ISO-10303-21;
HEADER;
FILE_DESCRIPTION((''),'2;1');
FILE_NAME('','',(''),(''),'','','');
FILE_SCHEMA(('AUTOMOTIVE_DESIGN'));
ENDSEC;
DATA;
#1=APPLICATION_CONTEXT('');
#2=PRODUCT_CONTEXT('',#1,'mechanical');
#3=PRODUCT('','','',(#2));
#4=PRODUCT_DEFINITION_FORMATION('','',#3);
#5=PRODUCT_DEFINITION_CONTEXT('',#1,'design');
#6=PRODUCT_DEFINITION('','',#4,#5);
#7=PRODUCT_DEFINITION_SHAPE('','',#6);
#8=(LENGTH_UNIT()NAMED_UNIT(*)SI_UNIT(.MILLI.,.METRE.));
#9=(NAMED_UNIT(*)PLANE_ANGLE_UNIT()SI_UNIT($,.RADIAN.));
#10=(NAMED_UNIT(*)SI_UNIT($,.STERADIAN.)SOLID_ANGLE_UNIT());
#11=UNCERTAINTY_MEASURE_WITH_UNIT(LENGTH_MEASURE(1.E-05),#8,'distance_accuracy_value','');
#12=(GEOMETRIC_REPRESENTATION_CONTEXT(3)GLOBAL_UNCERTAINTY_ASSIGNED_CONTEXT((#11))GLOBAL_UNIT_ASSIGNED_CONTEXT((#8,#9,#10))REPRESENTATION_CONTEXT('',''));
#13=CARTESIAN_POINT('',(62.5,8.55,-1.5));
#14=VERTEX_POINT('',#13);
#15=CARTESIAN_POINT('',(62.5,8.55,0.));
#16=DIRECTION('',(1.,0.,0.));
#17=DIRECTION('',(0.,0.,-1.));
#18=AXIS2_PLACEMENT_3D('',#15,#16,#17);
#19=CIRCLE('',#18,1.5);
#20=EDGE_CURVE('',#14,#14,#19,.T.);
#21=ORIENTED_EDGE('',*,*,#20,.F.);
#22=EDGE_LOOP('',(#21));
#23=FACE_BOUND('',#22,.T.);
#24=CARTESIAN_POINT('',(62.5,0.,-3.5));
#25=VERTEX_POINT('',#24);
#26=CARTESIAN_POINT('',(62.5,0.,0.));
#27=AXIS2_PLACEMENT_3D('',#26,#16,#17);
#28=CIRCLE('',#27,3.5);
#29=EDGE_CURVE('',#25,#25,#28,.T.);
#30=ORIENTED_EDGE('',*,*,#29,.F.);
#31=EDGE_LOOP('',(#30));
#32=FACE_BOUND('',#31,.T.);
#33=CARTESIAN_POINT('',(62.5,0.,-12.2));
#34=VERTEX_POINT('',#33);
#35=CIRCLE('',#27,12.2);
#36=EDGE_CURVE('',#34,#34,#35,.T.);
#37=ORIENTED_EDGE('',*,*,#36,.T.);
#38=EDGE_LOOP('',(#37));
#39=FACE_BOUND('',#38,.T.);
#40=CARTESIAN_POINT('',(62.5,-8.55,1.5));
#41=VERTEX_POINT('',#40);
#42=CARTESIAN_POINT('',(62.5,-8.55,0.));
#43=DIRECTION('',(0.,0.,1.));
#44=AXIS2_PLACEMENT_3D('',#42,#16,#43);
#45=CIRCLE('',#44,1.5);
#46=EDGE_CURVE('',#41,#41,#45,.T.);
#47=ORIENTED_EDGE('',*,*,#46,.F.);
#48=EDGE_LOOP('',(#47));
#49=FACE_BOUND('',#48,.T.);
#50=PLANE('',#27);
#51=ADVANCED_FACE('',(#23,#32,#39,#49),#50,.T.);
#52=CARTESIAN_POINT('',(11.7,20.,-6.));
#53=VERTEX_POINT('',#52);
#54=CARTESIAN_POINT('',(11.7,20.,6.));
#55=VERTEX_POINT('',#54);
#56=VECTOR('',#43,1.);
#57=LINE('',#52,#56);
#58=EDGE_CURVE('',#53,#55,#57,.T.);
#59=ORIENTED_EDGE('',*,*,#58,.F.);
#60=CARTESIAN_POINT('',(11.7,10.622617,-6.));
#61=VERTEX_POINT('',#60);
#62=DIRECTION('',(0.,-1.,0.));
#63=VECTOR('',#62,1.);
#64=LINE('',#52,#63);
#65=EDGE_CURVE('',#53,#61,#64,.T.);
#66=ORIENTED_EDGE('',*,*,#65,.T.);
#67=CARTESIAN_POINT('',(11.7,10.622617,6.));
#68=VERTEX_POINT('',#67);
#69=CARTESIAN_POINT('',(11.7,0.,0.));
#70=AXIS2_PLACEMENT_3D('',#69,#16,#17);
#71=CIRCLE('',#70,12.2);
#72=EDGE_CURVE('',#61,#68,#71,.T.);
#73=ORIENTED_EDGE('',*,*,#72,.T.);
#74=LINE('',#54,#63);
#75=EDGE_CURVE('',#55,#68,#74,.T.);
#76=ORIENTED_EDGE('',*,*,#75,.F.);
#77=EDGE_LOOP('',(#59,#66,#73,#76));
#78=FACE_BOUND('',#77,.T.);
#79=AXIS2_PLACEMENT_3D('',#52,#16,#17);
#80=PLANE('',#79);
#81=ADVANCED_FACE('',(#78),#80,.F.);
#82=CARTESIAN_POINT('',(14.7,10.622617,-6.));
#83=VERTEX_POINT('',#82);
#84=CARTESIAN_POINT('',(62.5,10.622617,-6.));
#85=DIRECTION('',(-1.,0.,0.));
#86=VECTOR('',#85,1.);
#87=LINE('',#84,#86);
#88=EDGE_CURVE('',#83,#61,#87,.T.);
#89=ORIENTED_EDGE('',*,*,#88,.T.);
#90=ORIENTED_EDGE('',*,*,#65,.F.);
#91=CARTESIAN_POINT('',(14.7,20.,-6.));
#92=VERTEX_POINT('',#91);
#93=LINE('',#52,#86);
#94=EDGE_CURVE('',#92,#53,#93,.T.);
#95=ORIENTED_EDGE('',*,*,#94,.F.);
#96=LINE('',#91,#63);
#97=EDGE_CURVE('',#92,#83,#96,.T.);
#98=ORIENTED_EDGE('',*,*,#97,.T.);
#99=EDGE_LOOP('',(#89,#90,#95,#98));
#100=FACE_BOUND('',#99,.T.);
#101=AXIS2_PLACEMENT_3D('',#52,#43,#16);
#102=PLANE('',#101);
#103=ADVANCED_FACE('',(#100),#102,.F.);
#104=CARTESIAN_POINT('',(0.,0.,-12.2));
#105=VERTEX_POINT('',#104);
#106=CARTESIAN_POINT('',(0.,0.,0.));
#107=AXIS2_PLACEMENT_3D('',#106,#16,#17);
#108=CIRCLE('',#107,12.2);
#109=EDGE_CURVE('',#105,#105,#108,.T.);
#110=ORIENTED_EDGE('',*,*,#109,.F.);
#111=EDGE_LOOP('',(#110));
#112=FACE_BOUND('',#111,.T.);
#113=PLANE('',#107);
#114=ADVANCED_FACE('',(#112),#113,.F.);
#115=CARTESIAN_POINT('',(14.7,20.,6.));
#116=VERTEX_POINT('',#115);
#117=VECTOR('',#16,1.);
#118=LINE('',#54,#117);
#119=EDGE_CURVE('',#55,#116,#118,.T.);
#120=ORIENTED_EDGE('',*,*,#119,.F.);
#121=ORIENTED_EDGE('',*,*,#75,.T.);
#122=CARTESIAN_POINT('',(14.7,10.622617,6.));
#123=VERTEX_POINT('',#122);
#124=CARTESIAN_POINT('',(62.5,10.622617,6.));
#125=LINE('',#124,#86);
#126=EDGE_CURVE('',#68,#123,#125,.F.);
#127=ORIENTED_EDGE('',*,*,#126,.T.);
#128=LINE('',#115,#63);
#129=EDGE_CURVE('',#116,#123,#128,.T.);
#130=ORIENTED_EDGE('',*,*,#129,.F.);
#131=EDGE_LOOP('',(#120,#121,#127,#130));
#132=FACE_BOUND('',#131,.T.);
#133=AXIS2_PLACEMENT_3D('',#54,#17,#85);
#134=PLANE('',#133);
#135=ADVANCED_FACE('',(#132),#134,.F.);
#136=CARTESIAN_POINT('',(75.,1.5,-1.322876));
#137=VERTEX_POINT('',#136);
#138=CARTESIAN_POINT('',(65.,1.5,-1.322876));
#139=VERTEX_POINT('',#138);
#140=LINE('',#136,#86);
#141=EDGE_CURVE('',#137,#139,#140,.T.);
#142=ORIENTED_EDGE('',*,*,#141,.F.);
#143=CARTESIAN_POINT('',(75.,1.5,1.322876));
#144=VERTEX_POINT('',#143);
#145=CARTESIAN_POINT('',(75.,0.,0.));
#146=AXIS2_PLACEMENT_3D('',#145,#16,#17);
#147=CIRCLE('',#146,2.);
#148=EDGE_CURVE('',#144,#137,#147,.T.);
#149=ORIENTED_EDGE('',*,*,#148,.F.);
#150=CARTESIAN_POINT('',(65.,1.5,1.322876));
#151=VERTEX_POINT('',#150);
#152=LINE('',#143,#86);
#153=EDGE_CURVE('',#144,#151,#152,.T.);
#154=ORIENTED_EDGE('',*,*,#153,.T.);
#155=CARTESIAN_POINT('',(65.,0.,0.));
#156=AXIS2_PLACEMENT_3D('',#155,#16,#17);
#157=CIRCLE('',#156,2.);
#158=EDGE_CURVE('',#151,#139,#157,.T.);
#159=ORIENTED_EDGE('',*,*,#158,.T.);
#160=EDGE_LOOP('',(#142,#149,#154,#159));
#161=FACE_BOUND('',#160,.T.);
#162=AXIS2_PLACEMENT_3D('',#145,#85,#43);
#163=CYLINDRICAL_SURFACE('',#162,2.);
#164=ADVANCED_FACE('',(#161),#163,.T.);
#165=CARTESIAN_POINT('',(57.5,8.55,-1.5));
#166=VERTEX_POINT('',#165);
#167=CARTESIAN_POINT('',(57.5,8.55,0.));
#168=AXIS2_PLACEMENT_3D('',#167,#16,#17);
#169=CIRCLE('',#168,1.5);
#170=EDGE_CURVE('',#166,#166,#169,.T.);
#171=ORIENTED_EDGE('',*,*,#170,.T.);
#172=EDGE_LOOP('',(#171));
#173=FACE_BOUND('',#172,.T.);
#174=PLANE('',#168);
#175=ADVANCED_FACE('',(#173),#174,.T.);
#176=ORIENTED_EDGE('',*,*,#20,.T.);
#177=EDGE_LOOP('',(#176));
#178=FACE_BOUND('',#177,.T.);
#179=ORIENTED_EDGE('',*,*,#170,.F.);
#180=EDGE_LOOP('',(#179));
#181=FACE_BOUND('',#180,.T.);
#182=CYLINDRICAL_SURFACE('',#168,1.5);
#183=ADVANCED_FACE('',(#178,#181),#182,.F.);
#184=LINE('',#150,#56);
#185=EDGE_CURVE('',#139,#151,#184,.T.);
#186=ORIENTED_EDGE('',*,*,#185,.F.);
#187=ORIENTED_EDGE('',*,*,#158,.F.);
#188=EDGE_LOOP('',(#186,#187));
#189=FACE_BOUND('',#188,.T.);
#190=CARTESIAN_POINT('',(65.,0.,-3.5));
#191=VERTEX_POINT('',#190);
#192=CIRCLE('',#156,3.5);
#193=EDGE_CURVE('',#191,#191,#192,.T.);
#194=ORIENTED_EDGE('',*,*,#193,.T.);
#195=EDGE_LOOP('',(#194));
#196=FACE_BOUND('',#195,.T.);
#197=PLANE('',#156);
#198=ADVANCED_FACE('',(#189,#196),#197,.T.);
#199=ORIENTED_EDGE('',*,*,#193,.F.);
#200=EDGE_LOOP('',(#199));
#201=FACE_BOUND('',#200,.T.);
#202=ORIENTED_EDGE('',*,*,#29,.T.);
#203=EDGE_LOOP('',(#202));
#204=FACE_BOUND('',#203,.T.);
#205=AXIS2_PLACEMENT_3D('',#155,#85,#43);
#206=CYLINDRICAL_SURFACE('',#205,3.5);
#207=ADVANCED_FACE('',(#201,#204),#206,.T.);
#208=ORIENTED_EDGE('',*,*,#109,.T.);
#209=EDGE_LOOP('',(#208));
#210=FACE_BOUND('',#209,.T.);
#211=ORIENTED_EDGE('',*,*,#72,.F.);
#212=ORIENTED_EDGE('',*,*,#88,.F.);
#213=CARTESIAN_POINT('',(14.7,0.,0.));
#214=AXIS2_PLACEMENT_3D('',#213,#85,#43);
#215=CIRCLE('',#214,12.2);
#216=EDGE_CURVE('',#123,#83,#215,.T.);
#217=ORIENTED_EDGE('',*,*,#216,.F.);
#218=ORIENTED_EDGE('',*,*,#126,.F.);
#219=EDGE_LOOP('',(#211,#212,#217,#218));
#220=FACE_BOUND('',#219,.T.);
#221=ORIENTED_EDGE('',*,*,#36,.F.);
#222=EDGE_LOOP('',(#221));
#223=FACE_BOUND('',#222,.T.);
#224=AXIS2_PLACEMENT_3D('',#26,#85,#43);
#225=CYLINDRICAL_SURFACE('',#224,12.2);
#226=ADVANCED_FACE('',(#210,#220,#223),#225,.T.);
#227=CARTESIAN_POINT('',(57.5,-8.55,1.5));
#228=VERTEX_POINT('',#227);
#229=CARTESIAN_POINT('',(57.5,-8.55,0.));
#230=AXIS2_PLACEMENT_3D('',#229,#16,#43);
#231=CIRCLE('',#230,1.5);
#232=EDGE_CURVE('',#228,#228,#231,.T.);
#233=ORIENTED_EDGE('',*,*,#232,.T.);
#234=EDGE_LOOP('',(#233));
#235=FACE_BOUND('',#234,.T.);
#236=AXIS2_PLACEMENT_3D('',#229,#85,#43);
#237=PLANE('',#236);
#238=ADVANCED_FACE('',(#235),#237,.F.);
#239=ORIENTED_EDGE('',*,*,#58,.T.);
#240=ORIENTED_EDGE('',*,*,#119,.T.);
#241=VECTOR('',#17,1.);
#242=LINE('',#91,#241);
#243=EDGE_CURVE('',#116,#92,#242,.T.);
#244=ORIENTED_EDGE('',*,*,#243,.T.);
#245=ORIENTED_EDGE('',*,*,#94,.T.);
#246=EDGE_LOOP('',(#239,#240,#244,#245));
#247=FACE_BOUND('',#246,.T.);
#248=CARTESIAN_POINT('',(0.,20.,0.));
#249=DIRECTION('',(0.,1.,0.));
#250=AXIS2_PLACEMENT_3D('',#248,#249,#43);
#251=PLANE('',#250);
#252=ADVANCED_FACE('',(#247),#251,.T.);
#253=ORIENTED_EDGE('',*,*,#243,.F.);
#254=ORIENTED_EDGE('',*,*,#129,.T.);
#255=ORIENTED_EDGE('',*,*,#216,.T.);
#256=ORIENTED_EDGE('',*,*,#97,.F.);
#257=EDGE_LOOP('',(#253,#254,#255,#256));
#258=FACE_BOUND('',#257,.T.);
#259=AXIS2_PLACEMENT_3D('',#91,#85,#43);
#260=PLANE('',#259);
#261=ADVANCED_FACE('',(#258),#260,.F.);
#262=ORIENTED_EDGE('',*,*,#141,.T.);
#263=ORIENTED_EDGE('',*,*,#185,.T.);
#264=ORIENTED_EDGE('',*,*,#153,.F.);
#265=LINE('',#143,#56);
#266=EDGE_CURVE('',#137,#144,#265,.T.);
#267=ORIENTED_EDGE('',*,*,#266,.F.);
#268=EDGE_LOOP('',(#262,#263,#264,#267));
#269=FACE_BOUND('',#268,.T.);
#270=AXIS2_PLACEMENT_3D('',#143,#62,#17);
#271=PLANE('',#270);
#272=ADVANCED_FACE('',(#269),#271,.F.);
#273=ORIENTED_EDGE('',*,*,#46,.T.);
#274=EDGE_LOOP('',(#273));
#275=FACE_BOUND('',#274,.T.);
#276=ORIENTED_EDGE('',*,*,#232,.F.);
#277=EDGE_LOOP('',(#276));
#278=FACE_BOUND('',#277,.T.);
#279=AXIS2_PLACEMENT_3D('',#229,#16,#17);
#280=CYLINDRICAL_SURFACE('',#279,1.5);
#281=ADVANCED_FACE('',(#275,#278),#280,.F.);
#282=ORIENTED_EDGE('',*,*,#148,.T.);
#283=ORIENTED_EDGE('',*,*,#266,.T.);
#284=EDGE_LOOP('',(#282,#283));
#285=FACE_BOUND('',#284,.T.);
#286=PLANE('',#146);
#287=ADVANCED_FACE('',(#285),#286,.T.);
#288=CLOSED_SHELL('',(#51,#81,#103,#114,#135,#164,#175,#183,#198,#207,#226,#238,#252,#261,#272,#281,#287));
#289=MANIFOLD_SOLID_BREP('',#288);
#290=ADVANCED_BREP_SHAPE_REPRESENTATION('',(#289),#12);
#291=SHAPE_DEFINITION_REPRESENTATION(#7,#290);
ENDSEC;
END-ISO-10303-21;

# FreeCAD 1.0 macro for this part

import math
import FreeCAD as App
import Part
import Sketcher
from FreeCAD import Vector
Q = App.Units.Quantity


def add_polygon(sketch, points):
    """Adds a closed chain of lines whose ends are joined by coincident constraints."""
    first, n = sketch.GeometryCount, len(points)
    for a, b in zip(points, points[1:] + points[:1]):
        sketch.addGeometry(Part.LineSegment(App.Vector(*a, 0), App.Vector(*b, 0)), False)
    for i in range(n):
        sketch.addConstraint(Sketcher.Constraint("Coincident", first + i, 2, first + (i + 1) % n, 1))

doc = App.newDocument("Part")
body = doc.addObject("PartDesign::Body", "Body")

# Sketch on YZ plane
sketch1 = body.newObject("Sketcher::SketchObject", "Sketch")
sketch1.AttachmentSupport = (doc.getObject("YZ_Plane"), [""])
sketch1.MapMode = "FlatFace"
sketch1.addGeometry(Part.Circle(Vector(0, 0, 0), Vector(0, 0, 1), 12), False)
sketch1.addConstraint([
    Sketcher.Constraint("Coincident", 0, 3, -1, 1),
    Sketcher.Constraint("Diameter", 0, Q("24.4 mm")),
])
pad1 = body.newObject("PartDesign::Pad", "Pad")
pad1.Profile = sketch1
pad1.Length = 62.5

# Sketch on YZ plane
sketch2 = body.newObject("Sketcher::SketchObject", "Sketch001")
sketch2.AttachmentSupport = (doc.getObject("YZ_Plane"), [""])
sketch2.MapMode = "FlatFace"
sketch2.AttachmentOffset = App.Placement(Vector(0, 0, 62.5), App.Rotation())
sketch2.addGeometry(Part.Circle(Vector(0, 0, 0), Vector(0, 0, 1), 3.5), False)
sketch2.addConstraint([
    Sketcher.Constraint("Coincident", 0, 3, -1, 1),
    Sketcher.Constraint("Diameter", 0, Q("7 mm")),
])
pad2 = body.newObject("PartDesign::Pad", "Pad001")
pad2.Profile = sketch2
pad2.Length = 2.5

# Sketch on YZ plane
sketch3 = body.newObject("Sketcher::SketchObject", "Sketch002")
sketch3.AttachmentSupport = (doc.getObject("YZ_Plane"), [""])
sketch3.MapMode = "FlatFace"
sketch3.AttachmentOffset = App.Placement(Vector(0, 0, 65), App.Rotation())
sketch3.addGeometry([
    Part.LineSegment(Vector(1.5, -1.3, 0), Vector(1.5, 1.3, 0)),
    Part.ArcOfCircle(Part.Circle(Vector(0, 0, 0), Vector(0, 0, 1), 2), math.radians(41), math.radians(319)),
], False)
sketch3.addConstraint([
    Sketcher.Constraint("Coincident", 0, 1, 1, 2),
    Sketcher.Constraint("Coincident", 1, 1, 0, 2),
    Sketcher.Constraint("Vertical", 0),
    Sketcher.Constraint("Coincident", 1, 3, -1, 1),
    Sketcher.Constraint("Radius", 1, Q("2 mm")),
    Sketcher.Constraint("DistanceX", -1, 1, 0, 1, Q("1.5 mm")),
])
pad3 = body.newObject("PartDesign::Pad", "Pad002")
pad3.Profile = sketch3
pad3.Length = 10

# Sketch on YZ plane
sketch4 = body.newObject("Sketcher::SketchObject", "Sketch003")
sketch4.AttachmentSupport = (doc.getObject("YZ_Plane"), [""])
sketch4.MapMode = "FlatFace"
sketch4.AttachmentOffset = App.Placement(Vector(0, 0, 62.5), App.Rotation())
sketch4.addGeometry([
    Part.Circle(Vector(8.6, 0, 0), Vector(0, 0, 1), 1.5),
    Part.Circle(Vector(-8.6, 0, 0), Vector(0, 0, 1), 1.5),
], False)
sketch4.addConstraint([
    Sketcher.Constraint("Equal", 0, 1),
    Sketcher.Constraint("Symmetric", 0, 3, 1, 3, -1, 1),
    Sketcher.Constraint("PointOnObject", 0, 3, -1),
    Sketcher.Constraint("Diameter", 0, Q("3 mm")),
    Sketcher.Constraint("DistanceX", 1, 3, 0, 3, Q("17.1 mm")),
])
pocket1 = body.newObject("PartDesign::Pocket", "Pocket")
pocket1.Profile = sketch4
pocket1.Length = 5

# Sketch on XZ plane
sketch5 = body.newObject("Sketcher::SketchObject", "Sketch004")
sketch5.AttachmentSupport = (doc.getObject("XZ_Plane"), [""])
sketch5.MapMode = "FlatFace"
add_polygon(sketch5, [(11.7, -6), (11.7, 6), (14.7, 6), (14.7, -6)])  # lines 0-3
sketch5.addConstraint([
    Sketcher.Constraint("Vertical", 0),
    Sketcher.Constraint("Horizontal", 1),
    Sketcher.Constraint("Vertical", 2),
    Sketcher.Constraint("Horizontal", 3),
    Sketcher.Constraint("DistanceX", 1, 1, 1, 2, Q("3 mm")),
    Sketcher.Constraint("DistanceY", 0, 1, 0, 2, Q("12 mm")),
    Sketcher.Constraint("DistanceY", -1, 1, 0, 2, Q("6 mm")),
    Sketcher.Constraint("DistanceX", -1, 1, 0, 2, Q("11.7 mm")),
])
pad4 = body.newObject("PartDesign::Pad", "Pad003")
pad4.Profile = sketch5
pad4.Length = 20
pad4.Reversed = True

doc.recompute()
